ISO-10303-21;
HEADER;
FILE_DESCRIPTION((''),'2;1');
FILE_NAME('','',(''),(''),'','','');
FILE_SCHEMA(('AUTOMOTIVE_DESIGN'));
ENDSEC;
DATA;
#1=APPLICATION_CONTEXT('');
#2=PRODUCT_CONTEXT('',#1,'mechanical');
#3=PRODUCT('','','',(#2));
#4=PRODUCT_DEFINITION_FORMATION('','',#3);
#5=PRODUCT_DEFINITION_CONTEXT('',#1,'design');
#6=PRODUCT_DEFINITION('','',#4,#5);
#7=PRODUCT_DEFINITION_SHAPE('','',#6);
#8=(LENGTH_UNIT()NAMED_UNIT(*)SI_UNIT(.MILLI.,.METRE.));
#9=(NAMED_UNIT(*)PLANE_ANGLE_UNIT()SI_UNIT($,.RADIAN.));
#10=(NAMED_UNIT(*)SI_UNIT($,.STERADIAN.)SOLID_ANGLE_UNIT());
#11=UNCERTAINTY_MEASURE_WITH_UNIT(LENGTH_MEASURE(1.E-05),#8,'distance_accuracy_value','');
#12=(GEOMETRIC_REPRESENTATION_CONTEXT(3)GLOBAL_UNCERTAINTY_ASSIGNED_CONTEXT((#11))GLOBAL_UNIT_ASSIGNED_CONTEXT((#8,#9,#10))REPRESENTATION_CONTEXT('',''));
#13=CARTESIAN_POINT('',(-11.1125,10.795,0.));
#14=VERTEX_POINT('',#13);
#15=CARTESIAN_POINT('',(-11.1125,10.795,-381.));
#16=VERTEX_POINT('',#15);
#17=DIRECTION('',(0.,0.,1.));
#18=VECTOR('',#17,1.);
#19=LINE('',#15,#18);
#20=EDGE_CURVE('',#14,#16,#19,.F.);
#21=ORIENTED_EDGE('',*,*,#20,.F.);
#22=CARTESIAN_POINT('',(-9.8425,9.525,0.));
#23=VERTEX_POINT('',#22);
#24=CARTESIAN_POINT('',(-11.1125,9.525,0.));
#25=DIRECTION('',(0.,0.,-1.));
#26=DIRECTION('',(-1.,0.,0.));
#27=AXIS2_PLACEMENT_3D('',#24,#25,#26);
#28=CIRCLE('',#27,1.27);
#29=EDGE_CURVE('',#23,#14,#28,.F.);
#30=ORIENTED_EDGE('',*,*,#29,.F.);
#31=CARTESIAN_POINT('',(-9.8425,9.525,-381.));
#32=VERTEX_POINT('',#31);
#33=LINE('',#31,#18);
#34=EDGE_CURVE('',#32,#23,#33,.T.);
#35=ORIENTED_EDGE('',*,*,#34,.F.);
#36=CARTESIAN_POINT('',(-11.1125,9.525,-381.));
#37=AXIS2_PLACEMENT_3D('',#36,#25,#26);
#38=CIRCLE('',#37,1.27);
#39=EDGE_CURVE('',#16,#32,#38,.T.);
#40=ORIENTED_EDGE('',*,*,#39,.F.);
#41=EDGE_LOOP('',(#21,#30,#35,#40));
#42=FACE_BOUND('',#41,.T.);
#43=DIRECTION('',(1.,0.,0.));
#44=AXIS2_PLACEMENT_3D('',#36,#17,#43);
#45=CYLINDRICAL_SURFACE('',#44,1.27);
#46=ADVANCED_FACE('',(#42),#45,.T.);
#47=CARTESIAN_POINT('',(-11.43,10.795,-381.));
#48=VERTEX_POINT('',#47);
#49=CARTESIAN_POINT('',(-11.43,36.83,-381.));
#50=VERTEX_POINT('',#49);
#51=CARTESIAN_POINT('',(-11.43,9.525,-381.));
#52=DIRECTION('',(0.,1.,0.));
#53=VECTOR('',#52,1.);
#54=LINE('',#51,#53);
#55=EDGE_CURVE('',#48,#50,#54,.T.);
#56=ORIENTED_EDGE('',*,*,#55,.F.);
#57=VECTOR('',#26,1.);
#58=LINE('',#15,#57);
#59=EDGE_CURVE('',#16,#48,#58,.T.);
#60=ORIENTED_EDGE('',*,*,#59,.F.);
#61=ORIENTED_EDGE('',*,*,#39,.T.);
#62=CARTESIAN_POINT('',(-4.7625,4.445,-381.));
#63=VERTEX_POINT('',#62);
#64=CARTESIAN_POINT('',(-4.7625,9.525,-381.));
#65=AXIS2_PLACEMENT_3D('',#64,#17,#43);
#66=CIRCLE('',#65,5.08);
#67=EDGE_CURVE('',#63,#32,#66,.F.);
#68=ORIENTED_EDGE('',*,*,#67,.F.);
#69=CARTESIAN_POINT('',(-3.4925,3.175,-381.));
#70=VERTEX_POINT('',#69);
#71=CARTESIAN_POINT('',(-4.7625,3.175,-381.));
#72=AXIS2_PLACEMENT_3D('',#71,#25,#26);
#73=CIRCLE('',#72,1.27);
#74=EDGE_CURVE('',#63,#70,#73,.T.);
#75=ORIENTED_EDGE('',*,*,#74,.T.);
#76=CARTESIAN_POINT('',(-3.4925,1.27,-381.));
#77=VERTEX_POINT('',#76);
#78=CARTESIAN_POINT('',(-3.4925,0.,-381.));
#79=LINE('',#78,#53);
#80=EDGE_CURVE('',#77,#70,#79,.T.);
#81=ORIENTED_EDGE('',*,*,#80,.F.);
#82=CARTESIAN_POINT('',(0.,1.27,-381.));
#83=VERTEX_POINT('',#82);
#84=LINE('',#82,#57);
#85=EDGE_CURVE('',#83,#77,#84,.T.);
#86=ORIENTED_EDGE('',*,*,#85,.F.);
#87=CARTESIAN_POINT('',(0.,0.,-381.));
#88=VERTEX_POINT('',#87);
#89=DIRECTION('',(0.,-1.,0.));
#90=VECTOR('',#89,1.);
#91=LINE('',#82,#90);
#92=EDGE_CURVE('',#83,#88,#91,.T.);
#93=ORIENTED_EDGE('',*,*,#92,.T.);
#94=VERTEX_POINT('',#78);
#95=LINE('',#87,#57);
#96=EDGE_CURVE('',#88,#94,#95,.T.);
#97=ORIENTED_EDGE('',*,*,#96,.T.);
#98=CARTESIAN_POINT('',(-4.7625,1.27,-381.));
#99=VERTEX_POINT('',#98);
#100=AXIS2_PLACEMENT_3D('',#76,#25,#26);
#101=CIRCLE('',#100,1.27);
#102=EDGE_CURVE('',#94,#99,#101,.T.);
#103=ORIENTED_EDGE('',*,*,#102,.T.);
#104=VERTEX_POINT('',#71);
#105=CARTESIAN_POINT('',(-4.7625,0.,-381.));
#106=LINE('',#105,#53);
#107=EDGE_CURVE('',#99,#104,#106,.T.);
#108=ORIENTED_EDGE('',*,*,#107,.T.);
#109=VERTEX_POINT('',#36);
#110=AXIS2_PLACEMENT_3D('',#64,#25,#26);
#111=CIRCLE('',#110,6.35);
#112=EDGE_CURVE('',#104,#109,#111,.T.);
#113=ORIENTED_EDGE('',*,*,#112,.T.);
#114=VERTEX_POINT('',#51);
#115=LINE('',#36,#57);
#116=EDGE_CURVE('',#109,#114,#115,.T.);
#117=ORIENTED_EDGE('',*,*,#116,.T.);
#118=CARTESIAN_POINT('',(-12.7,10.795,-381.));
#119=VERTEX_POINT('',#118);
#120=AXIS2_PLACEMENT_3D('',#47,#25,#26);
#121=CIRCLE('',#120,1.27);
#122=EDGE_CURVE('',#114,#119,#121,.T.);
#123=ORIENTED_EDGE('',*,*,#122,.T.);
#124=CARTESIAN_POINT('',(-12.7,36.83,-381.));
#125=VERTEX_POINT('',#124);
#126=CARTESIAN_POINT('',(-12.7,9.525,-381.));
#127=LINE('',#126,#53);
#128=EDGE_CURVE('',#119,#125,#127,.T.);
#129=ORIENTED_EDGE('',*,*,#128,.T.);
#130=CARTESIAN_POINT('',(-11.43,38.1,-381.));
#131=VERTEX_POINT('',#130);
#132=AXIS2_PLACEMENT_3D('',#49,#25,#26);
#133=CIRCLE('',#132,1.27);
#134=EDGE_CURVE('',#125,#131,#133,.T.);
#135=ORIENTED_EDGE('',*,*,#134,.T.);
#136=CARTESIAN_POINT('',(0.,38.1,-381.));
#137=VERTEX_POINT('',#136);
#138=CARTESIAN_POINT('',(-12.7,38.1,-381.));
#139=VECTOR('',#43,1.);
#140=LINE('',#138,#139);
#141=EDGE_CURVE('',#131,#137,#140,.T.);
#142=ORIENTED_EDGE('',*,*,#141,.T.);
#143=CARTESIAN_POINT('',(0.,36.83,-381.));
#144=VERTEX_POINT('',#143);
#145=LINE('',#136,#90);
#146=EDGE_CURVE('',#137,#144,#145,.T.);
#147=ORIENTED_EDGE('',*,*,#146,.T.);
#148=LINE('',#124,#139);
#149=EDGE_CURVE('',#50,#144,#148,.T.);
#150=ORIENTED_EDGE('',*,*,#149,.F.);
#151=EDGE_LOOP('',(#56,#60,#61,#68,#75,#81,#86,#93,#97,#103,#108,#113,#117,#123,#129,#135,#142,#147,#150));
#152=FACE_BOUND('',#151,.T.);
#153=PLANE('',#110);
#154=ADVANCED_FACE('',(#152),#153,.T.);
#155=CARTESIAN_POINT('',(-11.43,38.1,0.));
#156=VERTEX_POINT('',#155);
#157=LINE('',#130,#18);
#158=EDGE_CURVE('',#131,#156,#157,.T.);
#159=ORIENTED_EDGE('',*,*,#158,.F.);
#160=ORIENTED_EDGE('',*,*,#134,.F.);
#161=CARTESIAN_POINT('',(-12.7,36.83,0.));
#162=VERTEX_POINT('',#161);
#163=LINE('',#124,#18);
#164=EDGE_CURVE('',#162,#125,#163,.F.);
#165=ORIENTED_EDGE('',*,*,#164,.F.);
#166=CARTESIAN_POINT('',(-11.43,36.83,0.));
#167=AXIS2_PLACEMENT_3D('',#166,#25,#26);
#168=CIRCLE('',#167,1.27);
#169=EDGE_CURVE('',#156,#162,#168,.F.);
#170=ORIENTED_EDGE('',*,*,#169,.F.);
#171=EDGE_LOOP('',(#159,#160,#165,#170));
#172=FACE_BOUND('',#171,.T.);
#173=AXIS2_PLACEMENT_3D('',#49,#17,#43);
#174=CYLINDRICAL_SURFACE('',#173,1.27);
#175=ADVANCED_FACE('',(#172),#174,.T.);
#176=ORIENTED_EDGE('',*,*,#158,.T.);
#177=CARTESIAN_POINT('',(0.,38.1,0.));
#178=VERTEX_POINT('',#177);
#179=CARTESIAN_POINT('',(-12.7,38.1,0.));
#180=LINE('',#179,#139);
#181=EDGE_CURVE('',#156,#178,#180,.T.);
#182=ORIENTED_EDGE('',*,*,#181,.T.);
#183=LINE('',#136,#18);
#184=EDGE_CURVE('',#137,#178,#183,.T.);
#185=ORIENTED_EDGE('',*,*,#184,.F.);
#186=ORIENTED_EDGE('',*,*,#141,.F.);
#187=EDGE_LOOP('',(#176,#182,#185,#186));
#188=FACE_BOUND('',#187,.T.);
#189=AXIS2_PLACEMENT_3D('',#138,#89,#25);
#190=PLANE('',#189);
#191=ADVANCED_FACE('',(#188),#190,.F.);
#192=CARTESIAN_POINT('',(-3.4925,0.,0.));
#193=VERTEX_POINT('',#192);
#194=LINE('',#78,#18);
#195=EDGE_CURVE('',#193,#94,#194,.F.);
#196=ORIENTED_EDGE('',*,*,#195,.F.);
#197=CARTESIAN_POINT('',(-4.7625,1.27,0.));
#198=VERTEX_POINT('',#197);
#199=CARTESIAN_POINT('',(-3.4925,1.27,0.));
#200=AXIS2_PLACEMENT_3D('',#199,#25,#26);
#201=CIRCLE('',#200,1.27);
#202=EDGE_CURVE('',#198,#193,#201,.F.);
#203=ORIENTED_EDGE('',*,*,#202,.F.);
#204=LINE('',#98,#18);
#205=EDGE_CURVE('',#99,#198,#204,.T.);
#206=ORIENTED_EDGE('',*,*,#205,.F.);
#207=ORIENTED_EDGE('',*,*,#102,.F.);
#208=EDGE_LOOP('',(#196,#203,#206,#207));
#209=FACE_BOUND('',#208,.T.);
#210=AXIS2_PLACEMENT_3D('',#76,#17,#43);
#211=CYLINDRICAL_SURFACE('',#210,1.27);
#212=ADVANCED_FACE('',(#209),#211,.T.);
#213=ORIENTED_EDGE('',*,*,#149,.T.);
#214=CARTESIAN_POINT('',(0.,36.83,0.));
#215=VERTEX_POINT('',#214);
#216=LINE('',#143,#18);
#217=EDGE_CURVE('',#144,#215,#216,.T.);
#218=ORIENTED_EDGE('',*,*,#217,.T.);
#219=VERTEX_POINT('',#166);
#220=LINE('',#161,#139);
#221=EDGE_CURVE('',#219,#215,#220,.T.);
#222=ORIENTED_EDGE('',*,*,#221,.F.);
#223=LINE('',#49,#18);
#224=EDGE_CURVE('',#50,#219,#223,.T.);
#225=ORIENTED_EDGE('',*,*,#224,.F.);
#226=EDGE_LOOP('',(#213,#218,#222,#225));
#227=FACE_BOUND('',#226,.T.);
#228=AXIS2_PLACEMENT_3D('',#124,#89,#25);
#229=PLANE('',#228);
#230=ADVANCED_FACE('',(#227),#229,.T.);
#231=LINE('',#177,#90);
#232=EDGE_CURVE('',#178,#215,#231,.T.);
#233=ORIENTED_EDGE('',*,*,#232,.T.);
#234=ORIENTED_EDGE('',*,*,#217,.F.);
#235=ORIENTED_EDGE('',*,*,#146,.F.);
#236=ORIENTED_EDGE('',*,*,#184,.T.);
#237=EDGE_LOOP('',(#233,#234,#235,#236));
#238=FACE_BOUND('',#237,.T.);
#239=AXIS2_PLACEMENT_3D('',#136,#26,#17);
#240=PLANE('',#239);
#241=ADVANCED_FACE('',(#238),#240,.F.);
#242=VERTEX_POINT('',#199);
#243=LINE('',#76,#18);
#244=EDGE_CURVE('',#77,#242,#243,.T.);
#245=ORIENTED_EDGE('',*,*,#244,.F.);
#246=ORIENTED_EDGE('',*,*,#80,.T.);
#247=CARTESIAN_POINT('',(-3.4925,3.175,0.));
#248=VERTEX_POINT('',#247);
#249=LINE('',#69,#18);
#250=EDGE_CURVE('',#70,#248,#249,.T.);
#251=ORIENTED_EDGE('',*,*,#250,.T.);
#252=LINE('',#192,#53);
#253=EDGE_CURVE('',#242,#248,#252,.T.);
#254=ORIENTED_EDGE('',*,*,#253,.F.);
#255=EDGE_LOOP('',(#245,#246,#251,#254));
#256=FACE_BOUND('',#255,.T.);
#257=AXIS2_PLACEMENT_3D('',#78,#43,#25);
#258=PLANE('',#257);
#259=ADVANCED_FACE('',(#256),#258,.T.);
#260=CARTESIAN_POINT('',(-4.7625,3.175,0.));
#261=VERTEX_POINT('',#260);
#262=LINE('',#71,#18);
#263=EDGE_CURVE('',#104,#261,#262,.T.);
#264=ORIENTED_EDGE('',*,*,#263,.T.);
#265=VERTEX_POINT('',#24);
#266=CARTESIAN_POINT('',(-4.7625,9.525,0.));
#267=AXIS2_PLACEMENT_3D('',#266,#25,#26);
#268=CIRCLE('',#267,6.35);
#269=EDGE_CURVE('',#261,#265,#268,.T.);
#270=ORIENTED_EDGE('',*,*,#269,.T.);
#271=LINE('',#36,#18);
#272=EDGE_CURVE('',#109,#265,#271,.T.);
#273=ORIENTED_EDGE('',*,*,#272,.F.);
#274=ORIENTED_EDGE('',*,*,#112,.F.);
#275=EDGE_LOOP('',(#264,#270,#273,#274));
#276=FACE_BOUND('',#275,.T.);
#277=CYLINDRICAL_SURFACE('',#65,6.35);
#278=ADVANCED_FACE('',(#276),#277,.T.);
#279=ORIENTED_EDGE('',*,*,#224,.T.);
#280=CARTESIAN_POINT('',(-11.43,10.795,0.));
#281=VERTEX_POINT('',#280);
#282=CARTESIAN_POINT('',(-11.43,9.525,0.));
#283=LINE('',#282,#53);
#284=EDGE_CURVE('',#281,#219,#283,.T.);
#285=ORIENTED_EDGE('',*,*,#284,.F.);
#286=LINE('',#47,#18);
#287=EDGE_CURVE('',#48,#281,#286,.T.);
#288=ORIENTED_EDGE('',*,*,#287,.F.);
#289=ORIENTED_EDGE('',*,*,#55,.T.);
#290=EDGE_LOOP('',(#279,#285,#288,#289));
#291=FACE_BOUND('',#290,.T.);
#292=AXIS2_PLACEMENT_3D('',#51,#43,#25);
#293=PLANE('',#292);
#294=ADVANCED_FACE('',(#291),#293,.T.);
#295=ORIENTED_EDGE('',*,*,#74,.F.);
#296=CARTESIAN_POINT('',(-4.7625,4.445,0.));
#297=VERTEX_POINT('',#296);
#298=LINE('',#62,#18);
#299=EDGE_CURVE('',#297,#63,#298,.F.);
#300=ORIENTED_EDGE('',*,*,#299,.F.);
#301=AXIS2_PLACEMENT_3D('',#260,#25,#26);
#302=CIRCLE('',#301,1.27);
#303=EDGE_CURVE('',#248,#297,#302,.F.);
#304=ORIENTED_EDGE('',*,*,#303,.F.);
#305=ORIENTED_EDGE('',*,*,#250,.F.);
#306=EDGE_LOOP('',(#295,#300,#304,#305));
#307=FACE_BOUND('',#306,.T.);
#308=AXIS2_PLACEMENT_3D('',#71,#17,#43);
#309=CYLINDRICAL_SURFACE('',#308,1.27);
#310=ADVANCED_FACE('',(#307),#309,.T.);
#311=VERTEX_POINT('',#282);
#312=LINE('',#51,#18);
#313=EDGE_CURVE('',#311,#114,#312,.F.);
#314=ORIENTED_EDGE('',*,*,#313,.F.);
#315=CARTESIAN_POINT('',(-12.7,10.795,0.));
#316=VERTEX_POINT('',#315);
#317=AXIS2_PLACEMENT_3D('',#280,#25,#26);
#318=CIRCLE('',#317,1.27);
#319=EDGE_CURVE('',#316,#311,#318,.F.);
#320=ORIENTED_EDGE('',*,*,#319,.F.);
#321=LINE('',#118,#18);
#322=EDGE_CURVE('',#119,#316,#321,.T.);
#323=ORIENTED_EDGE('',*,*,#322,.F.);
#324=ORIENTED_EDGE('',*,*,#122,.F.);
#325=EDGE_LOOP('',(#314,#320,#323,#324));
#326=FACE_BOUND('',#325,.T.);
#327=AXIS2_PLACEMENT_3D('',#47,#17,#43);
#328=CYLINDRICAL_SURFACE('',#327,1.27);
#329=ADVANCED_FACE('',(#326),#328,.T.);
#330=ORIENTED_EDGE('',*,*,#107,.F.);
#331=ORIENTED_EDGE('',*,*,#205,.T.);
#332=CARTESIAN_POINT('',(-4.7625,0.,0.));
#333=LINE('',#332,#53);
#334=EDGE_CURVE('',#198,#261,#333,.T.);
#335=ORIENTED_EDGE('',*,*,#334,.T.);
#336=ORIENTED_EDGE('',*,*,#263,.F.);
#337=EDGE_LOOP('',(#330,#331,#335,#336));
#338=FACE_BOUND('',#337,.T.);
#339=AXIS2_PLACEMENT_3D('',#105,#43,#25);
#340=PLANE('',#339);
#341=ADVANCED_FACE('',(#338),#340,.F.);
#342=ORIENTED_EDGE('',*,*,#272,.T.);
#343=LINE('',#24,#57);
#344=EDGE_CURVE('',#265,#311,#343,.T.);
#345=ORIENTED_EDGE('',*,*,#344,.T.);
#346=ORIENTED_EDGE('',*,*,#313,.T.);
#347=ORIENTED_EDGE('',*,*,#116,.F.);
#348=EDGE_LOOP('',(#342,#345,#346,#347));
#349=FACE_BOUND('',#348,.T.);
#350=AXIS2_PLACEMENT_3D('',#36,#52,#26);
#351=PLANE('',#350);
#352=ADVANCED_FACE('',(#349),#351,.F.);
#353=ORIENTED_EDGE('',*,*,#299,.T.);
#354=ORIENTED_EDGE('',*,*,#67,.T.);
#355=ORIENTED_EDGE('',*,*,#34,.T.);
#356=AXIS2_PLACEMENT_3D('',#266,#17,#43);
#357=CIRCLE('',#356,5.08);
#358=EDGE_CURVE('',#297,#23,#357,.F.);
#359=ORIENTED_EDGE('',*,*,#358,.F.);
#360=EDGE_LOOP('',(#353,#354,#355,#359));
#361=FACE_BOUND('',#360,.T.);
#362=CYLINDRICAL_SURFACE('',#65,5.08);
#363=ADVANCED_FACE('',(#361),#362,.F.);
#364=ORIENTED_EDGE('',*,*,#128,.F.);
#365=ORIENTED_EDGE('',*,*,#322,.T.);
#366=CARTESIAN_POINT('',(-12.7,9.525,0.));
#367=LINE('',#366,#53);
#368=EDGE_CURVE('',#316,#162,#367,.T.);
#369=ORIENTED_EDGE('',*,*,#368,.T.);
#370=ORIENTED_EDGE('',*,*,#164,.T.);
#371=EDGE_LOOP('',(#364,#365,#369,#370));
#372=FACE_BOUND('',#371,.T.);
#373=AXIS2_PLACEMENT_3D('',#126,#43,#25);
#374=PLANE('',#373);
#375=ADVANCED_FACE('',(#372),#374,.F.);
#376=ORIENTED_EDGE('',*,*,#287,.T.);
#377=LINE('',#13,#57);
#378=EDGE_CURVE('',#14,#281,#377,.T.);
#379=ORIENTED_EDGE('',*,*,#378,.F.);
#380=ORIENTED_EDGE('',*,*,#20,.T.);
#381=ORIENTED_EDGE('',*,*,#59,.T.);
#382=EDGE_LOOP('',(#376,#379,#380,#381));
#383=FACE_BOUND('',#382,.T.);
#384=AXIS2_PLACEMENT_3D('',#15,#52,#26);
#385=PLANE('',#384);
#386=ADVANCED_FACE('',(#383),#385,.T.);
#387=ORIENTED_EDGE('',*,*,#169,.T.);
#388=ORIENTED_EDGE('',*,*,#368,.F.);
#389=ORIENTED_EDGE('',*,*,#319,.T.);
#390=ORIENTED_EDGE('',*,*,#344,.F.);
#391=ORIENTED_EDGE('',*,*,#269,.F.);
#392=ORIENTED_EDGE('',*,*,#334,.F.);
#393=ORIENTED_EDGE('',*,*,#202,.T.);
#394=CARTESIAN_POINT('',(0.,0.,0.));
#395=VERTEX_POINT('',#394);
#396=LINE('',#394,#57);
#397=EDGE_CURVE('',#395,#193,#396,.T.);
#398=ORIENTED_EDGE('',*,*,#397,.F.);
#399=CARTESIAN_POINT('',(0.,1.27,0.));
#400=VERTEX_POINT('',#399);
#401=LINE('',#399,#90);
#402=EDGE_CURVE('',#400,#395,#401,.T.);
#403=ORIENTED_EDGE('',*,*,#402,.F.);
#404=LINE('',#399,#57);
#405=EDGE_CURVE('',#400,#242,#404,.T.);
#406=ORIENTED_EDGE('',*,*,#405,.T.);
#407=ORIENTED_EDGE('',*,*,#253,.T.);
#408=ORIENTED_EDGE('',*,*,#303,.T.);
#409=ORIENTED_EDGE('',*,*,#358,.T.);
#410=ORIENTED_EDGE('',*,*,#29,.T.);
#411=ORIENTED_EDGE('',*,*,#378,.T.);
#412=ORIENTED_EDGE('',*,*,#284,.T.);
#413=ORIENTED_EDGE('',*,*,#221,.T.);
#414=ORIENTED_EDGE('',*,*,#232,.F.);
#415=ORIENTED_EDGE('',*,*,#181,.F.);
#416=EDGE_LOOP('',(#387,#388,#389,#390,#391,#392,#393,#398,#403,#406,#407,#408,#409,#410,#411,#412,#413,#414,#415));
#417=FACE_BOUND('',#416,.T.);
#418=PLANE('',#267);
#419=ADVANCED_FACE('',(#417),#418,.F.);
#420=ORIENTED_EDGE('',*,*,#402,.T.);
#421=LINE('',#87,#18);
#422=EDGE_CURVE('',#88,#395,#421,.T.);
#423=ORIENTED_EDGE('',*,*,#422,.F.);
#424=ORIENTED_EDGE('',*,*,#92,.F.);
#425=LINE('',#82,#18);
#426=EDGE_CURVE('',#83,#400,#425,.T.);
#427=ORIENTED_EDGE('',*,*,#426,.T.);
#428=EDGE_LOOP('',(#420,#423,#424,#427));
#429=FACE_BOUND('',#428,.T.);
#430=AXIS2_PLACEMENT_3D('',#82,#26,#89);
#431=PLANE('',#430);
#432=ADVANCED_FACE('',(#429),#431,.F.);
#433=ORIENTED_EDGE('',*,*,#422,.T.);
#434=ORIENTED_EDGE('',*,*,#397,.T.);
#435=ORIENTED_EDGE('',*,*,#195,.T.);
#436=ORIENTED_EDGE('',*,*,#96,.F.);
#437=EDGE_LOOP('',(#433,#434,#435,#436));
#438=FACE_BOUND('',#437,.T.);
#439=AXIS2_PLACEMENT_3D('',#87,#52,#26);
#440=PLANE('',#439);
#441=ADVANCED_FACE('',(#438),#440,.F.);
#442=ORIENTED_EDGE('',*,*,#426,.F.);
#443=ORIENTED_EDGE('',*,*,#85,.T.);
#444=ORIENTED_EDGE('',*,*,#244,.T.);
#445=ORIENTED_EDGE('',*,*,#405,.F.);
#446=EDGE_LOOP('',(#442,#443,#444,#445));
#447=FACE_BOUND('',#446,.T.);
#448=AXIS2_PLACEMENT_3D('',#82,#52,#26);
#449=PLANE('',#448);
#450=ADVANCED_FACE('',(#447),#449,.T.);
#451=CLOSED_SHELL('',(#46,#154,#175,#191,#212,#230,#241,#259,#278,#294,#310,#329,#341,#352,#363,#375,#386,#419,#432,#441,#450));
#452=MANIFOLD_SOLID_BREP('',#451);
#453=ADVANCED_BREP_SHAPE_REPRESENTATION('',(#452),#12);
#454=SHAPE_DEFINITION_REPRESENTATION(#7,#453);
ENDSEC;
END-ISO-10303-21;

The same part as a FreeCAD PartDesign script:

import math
import FreeCAD as App
import Part
import Sketcher
from FreeCAD import Vector
Q = App.Units.Quantity


def edges_at(feature, points):
    """Names of the edges that pass closest to the given points."""
    edges = feature.Shape.Edges
    near = lambda p: min(range(len(edges)), key=lambda i: edges[i].distToShape(Part.Vertex(*p))[0])
    return sorted({f"Edge{near(p) + 1}" for p in points})

doc = App.newDocument("Part")
params = doc.addObject("Spreadsheet::Sheet", "Params")
for row, (alias, value) in enumerate([
    ("sketch1_radius", "0.2 in"),
    ("sketch1_radius2", "0.25 in"),
    ("sketch1_width", "0.5 in"),
    ("sketch1_width2", "0.45 in"),
    ("sketch1_height", "0.05 in"),
    ("pad1_length", "15 in"),
    ("fillet_radius", "0.05 in"),
], start=1):
    params.set(f"A{row}", alias)
    params.set(f"B{row}", "=" + value)
    params.setAlias(f"B{row}", alias)

body = doc.addObject("PartDesign::Body", "Body")

# Sketch on XY plane
sketch1 = body.newObject("Sketcher::SketchObject", "Sketch")
sketch1.AttachmentSupport = (doc.getObject("XY_Plane"), [""])
sketch1.MapMode = "FlatFace"
sketch1.addGeometry([
    Part.LineSegment(Vector(-4.8, 0, 0), Vector(0, 0, 0)),  # 0
    Part.LineSegment(Vector(0, 0, 0), Vector(0, 1.3, 0)),  # 1
    Part.LineSegment(Vector(0, 1.3, 0), Vector(-3.5, 1.3, 0)),  # 2
    Part.LineSegment(Vector(-3.5, 1.3, 0), Vector(-3.5, 4.6, 0)),  # 3
    Part.ArcOfCircle(Part.Circle(Vector(-4.8, 9.5, 0), Vector(0, 0, 1), 5.1), math.radians(166), math.radians(284)),  # 4
    Part.LineSegment(Vector(-9.7, 10.8, 0), Vector(-11.4, 10.8, 0)),  # 5
    Part.LineSegment(Vector(-11.4, 10.8, 0), Vector(-11.4, 36.8, 0)),  # 6
    Part.LineSegment(Vector(-11.4, 36.8, 0), Vector(0, 36.8, 0)),  # 7
    Part.LineSegment(Vector(0, 36.8, 0), Vector(0, 38.1, 0)),  # 8
    Part.LineSegment(Vector(0, 38.1, 0), Vector(-12.7, 38.1, 0)),  # 9
    Part.LineSegment(Vector(-12.7, 38.1, 0), Vector(-12.7, 9.5, 0)),  # 10
    Part.LineSegment(Vector(-12.7, 9.5, 0), Vector(-11.1, 9.5, 0)),  # 11
    Part.ArcOfCircle(Part.Circle(Vector(-4.8, 9.5, 0), Vector(0, 0, 1), 6.3), math.radians(180), math.radians(270)),  # 12
    Part.LineSegment(Vector(-4.8, 3.2, 0), Vector(-4.8, 0, 0)),  # 13
], False)
sketch1.addConstraint([
    Sketcher.Constraint("Coincident", 0, 2, 1, 1),
    Sketcher.Constraint("Coincident", 1, 2, 2, 1),
    Sketcher.Constraint("Coincident", 2, 2, 3, 1),
    Sketcher.Constraint("Coincident", 3, 2, 4, 2),
    Sketcher.Constraint("Coincident", 4, 1, 5, 1),
    Sketcher.Constraint("Coincident", 5, 2, 6, 1),
    Sketcher.Constraint("Coincident", 6, 2, 7, 1),
    Sketcher.Constraint("Coincident", 7, 2, 8, 1),
    Sketcher.Constraint("Coincident", 8, 2, 9, 1),
    Sketcher.Constraint("Coincident", 9, 2, 10, 1),
    Sketcher.Constraint("Coincident", 10, 2, 11, 1),
    Sketcher.Constraint("Coincident", 11, 2, 12, 1),
    Sketcher.Constraint("Coincident", 12, 2, 13, 1),
    Sketcher.Constraint("Coincident", 13, 2, 0, 1),
    Sketcher.Constraint("Horizontal", 0),
    Sketcher.Constraint("Vertical", 1),
    Sketcher.Constraint("Horizontal", 2),
    Sketcher.Constraint("Vertical", 3),
    Sketcher.Constraint("Horizontal", 5),
    Sketcher.Constraint("Vertical", 6),
    Sketcher.Constraint("Horizontal", 7),
    Sketcher.Constraint("Vertical", 8),
    Sketcher.Constraint("Horizontal", 9),
    Sketcher.Constraint("Vertical", 10),
    Sketcher.Constraint("Horizontal", 11),
    Sketcher.Constraint("Vertical", 13),
    Sketcher.Constraint("Coincident", 0, 2, -1, 1),
    Sketcher.Constraint("Coincident", 12, 3, 4, 3),
    Sketcher.Constraint("PointOnObject", 7, 2, -2),
    Sketcher.Constraint("Horizontal", 12, 3, 10, 2),
    Sketcher.Constraint("Vertical", 4, 3, 12, 2),
    Sketcher.Constraint("Equal", 1, 8),
    Sketcher.Constraint("Radius", 4, Q("0.2 in")),
    Sketcher.Constraint("Radius", 12, Q("0.25 in")),
    Sketcher.Constraint("DistanceX", 9, 2, 9, 1, Q("0.5 in")),
    Sketcher.Constraint("DistanceX", 7, 1, 7, 2, Q("0.45 in")),
    Sketcher.Constraint("DistanceY", 1, 1, 1, 2, Q("0.05 in")),
    Sketcher.Constraint("DistanceY", -1, 1, 8, 2, Q("1.5 in")),
    Sketcher.Constraint("DistanceX", 0, 1, 0, 2, Q("0.1875 in")),
    Sketcher.Constraint("DistanceY", 6, 1, 6, 2, Q("1.025 in")),
    Sketcher.Constraint("DistanceY", 10, 2, 10, 1, Q("1.125 in")),
    Sketcher.Constraint("DistanceX", 12, 3, 2, 2, Q("0.05 in")),
])
sketch1.setExpression("Constraints[32]", "Params.sketch1_radius")
sketch1.setExpression("Constraints[33]", "Params.sketch1_radius2")
sketch1.setExpression("Constraints[34]", "Params.sketch1_width")
sketch1.setExpression("Constraints[35]", "Params.sketch1_width2")
sketch1.setExpression("Constraints[36]", "Params.sketch1_height")
pad1 = body.newObject("PartDesign::Pad", "Pad")
pad1.Profile = sketch1
pad1.setExpression("Length", "Params.pad1_length")
pad1.Reversed = True
doc.recompute()

fillet = body.newObject("PartDesign::Fillet", "Fillet")
fillet.Base = (pad1, edges_at(pad1, [
    (-9.681, 10.795, -190.5),
    (-3.493, 4.606, -190.5),
    (-4.763, 0, -190.5),
    (-12.7, 9.525, -190.5),
    (-12.7, 38.1, -190.5),
]))
fillet.setExpression("Radius", "Params.fillet_radius")

doc.recompute()
